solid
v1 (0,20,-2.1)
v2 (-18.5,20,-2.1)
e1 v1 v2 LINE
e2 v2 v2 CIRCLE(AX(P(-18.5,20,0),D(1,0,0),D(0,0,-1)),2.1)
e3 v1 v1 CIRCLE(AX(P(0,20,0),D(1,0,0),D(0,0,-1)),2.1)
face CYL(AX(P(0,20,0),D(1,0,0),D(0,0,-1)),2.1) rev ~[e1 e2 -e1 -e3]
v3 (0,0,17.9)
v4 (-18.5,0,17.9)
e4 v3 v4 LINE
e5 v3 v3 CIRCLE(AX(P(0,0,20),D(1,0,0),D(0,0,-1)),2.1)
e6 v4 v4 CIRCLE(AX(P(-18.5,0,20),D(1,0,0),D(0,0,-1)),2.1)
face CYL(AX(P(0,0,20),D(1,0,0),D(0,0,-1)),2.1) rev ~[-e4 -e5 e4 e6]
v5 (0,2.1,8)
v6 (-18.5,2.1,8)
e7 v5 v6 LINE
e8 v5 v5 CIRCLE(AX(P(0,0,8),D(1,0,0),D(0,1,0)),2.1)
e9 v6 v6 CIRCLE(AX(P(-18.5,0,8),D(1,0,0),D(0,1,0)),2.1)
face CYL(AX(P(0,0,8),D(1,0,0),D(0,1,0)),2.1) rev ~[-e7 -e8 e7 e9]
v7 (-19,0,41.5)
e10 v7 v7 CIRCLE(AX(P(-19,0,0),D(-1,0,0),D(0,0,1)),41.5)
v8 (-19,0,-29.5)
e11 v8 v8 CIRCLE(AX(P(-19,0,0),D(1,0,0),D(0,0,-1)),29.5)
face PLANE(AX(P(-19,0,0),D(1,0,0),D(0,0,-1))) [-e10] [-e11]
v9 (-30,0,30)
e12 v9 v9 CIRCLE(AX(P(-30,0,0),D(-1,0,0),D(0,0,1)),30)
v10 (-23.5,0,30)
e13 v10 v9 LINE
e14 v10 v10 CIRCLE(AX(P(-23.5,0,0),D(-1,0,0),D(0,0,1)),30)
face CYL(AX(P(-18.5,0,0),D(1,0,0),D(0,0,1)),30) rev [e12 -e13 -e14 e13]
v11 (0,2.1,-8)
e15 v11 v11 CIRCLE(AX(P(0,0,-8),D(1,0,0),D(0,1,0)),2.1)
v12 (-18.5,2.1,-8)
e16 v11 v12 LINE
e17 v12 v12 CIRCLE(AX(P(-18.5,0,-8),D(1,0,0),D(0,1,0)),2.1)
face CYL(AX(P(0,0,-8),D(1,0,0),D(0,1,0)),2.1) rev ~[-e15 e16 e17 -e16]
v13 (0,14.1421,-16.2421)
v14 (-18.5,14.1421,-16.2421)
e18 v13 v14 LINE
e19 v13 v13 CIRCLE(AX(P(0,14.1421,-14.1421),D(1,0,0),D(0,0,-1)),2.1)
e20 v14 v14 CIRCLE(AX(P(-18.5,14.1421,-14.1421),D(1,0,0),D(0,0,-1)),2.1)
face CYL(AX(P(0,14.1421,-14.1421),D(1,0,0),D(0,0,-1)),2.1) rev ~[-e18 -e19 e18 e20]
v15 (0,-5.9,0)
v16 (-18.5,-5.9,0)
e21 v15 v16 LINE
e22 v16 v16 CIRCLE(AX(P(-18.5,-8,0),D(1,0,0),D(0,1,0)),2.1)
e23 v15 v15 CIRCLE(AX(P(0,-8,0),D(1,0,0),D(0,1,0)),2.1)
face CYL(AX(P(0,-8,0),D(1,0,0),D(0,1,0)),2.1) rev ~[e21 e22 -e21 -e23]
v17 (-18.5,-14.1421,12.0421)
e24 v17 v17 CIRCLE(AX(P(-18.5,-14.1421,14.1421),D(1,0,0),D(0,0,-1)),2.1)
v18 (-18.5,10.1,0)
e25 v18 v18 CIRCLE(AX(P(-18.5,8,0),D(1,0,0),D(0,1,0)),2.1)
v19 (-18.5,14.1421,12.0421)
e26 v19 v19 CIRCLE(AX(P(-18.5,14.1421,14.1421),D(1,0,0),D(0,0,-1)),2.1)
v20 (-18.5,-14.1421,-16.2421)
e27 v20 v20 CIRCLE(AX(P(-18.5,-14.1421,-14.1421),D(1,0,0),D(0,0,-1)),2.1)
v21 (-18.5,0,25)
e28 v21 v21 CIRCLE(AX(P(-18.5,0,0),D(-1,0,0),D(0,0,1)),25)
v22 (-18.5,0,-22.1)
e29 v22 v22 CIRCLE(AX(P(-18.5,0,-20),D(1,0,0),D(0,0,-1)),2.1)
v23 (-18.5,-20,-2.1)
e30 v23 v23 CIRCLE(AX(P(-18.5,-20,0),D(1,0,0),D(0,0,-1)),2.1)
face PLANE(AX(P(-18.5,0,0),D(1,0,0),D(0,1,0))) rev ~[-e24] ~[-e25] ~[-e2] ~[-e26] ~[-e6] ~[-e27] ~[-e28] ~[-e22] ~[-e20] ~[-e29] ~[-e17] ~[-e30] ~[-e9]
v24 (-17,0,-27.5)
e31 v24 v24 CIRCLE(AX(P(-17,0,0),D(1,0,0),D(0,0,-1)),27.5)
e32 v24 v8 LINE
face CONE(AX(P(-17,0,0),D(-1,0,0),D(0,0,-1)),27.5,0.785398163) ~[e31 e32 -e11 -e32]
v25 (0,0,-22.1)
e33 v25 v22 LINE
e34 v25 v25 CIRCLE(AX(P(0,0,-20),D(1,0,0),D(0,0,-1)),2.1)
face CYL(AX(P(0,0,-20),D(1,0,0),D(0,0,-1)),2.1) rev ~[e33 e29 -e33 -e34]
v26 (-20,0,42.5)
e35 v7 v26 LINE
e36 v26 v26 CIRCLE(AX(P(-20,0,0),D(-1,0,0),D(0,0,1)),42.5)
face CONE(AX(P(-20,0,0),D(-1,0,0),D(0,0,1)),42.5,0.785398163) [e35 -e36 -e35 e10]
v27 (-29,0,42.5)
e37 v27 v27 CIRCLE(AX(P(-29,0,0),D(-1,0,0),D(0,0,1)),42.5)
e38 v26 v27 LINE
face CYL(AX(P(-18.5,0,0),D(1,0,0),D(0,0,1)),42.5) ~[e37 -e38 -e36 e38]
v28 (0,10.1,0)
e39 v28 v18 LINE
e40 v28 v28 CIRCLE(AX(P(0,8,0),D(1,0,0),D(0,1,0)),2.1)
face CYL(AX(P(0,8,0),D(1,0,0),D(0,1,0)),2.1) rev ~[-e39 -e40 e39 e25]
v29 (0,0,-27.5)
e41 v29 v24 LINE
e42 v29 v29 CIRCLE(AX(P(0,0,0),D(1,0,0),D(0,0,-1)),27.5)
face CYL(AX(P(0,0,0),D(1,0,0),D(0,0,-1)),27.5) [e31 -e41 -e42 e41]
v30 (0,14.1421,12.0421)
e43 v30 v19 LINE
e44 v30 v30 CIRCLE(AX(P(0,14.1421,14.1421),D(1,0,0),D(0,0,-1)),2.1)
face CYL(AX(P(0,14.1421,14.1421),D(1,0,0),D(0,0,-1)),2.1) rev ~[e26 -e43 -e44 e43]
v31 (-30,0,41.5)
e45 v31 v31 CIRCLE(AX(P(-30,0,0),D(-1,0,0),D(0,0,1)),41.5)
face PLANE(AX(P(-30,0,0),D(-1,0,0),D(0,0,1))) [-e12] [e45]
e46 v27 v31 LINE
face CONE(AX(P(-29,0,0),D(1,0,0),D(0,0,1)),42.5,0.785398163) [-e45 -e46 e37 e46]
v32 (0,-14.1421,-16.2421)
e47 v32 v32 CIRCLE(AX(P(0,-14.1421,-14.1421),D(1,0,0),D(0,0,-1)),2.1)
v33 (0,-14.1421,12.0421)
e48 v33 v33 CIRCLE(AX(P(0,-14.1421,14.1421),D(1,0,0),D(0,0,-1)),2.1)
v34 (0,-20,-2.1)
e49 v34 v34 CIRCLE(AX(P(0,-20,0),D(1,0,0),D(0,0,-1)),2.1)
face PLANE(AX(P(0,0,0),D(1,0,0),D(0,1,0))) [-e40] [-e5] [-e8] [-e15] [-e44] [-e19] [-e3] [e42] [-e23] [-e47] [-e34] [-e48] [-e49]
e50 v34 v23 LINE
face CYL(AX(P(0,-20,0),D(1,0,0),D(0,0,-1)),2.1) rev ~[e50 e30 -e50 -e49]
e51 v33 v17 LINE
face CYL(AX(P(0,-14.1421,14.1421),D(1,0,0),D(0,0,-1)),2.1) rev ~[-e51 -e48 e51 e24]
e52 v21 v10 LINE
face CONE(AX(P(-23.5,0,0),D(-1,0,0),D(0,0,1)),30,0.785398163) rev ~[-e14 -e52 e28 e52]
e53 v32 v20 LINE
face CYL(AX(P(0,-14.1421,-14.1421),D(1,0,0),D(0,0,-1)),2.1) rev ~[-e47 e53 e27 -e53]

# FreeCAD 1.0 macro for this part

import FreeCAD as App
import Part
import Sketcher

V = App.Vector
Q = App.Units.Quantity


def edges_at(feature, points):
    """Names of the edges that pass closest to the given points."""
    edges = feature.Shape.Edges
    near = lambda p: min(range(len(edges)), key=lambda i: edges[i].distToShape(Part.Vertex(*p))[0])
    return sorted({f"Edge{near(p) + 1}" for p in points})

doc = App.newDocument("Part")
params = doc.addObject("Spreadsheet::Sheet", "Params")
for row, (alias, value) in enumerate([
    ("sketch1_diameter", "85 mm"),
    ("sketch1_diameter2", "4.2 mm"),
    ("pad1_length", "18.5 mm"),
    ("sketch2_diameter", "60 mm"),
    ("sketch2_diameter2", "85 mm"),
    ("pad2_length", "11.5 mm"),
    ("chamfer_size", "5 mm"),
    ("sketch3_diameter", "55 mm"),
    ("sketch3_diameter2", "85 mm"),
    ("pocket1_length", "19 mm"),
    ("chamfer2_size", "2 mm"),
    ("sketch4_diameter", "4.2 mm"),
    ("chamfer3_size", "1 mm"),
], start=1):
    params.set(f"A{row}", alias)
    params.set(f"B{row}", "=" + value)
    params.setAlias(f"B{row}", alias)

body = doc.addObject("PartDesign::Body", "Body")

# Sketch on YZ plane
sketch1 = doc.addObject("Sketcher::SketchObject", "Sketch")
body.addObject(sketch1)
sketch1.AttachmentSupport = (doc.YZ_Plane, [""])
sketch1.MapMode = "FlatFace"
sketch1.addGeometry([
    Part.Circle(V(0, 0, 0), V(0, 0, 1), 42.5),  # 0
    Part.Circle(V(0, -8, 0), V(0, 0, 1), 2.1),  # 1
    Part.Circle(V(-8, 0, 0), V(0, 0, 1), 2.1),  # 2
    Part.Circle(V(8, 0, 0), V(0, 0, 1), 2.1),  # 3
    Part.Circle(V(0, 8, 0), V(0, 0, 1), 2.1),  # 4
], False)
sketch1.addConstraint([
    Sketcher.Constraint("Coincident", 0, 3, -1, 1),
    Sketcher.Constraint("Equal", 1, 2),
    Sketcher.Constraint("Equal", 2, 3),
    Sketcher.Constraint("Equal", 3, 4),
    Sketcher.Constraint("Symmetric", 2, 3, 3, 3, -1, 1),
    Sketcher.Constraint("Symmetric", 1, 3, 4, 3, -1, 1),
    Sketcher.Constraint("PointOnObject", 1, 3, -2),
    Sketcher.Constraint("PointOnObject", 2, 3, -1),
    Sketcher.Constraint("Diameter", 0, Q("85 mm")),
    Sketcher.Constraint("Diameter", 1, Q("4.2 mm")),
    Sketcher.Constraint("DistanceX", 2, 3, 3, 3, Q("16 mm")),
    Sketcher.Constraint("DistanceY", 1, 3, 4, 3, Q("16 mm")),
])
sketch1.setExpression("Constraints[8]", "Params.sketch1_diameter")
sketch1.setExpression("Constraints[9]", "Params.sketch1_diameter2")
pad1 = doc.addObject("PartDesign::Pad", "Pad")
body.addObject(pad1)
pad1.Profile = sketch1
pad1.setExpression("Length", "Params.pad1_length")
pad1.Reversed = True

# Sketch on YZ plane
sketch2 = doc.addObject("Sketcher::SketchObject", "Sketch001")
body.addObject(sketch2)
sketch2.AttachmentSupport = (doc.YZ_Plane, [""])
sketch2.MapMode = "FlatFace"
sketch2.AttachmentOffset = App.Placement(V(0, 0, -18.5), App.Rotation())
sketch2.addGeometry([
    Part.Circle(V(0, 0, 0), V(0, 0, 1), 42),
    Part.Circle(V(0, 0, 0), V(0, 0, 1), 30),
], False)
sketch2.addConstraint([
    Sketcher.Constraint("Coincident", 0, 3, -1, 1),
    Sketcher.Constraint("Coincident", 1, 3, -1, 1),
    Sketcher.Constraint("Diameter", 1, Q("60 mm")),
    Sketcher.Constraint("Diameter", 0, Q("85 mm")),
])
sketch2.setExpression("Constraints[2]", "Params.sketch2_diameter")
sketch2.setExpression("Constraints[3]", "Params.sketch2_diameter2")
pad2 = doc.addObject("PartDesign::Pad", "Pad001")
body.addObject(pad2)
pad2.Profile = sketch2
pad2.setExpression("Length", "Params.pad2_length")
pad2.Reversed = True
doc.recompute()

chamfer = doc.addObject("PartDesign::Chamfer", "Chamfer")
body.addObject(chamfer)
chamfer.Base = (pad2, edges_at(pad2, [(-18.5, 0, -30)]))
chamfer.setExpression("Size", "Params.chamfer_size")

# Sketch on YZ plane
sketch3 = doc.addObject("Sketcher::SketchObject", "Sketch002")
body.addObject(sketch3)
sketch3.AttachmentSupport = (doc.YZ_Plane, [""])
sketch3.MapMode = "FlatFace"
sketch3.addGeometry([
    Part.Circle(V(0, 0, 0), V(0, 0, 1), 42),
    Part.Circle(V(0, 0, 0), V(0, 0, 1), 28),
], False)
sketch3.addConstraint([
    Sketcher.Constraint("Coincident", 0, 3, -1, 1),
    Sketcher.Constraint("Coincident", 1, 3, -1, 1),
    Sketcher.Constraint("Diameter", 1, Q("55 mm")),
    Sketcher.Constraint("Diameter", 0, Q("85 mm")),
])
sketch3.setExpression("Constraints[2]", "Params.sketch3_diameter")
sketch3.setExpression("Constraints[3]", "Params.sketch3_diameter2")
pocket1 = doc.addObject("PartDesign::Pocket", "Pocket")
body.addObject(pocket1)
pocket1.Profile = sketch3
pocket1.setExpression("Length", "Params.pocket1_length")
doc.recompute()

chamfer2 = doc.addObject("PartDesign::Chamfer", "Chamfer001")
body.addObject(chamfer2)
chamfer2.Base = (pocket1, edges_at(pocket1, [(-19, 0, 27.5)]))
chamfer2.setExpression("Size", "Params.chamfer2_size")

# Sketch on YZ plane
sketch4 = doc.addObject("Sketcher::SketchObject", "Sketch003")
body.addObject(sketch4)
sketch4.AttachmentSupport = (doc.YZ_Plane, [""])
sketch4.MapMode = "FlatFace"
sketch4.addGeometry([
    Part.Circle(V(0, -20, 0), V(0, 0, 1), 2.1),  # 0
    Part.Circle(V(14.1, -14.1, 0), V(0, 0, 1), 2.1),  # 1
    Part.Circle(V(20, 0, 0), V(0, 0, 1), 2.1),  # 2
    Part.Circle(V(14.1, 14.1, 0), V(0, 0, 1), 2.1),  # 3
    Part.Circle(V(0, 20, 0), V(0, 0, 1), 2.1),  # 4
    Part.Circle(V(-14.1, 14.1, 0), V(0, 0, 1), 2.1),  # 5
    Part.Circle(V(-20, 0, 0), V(0, 0, 1), 2.1),  # 6
    Part.Circle(V(-14.1, -14.1, 0), V(0, 0, 1), 2.1),  # 7
], False)
sketch4.addConstraint([
    Sketcher.Constraint("Equal", 0, 1),
    Sketcher.Constraint("Equal", 1, 2),
    Sketcher.Constraint("Equal", 2, 3),
    Sketcher.Constraint("Equal", 3, 4),
    Sketcher.Constraint("Equal", 4, 5),
    Sketcher.Constraint("Equal", 5, 6),
    Sketcher.Constraint("Equal", 6, 7),
    Sketcher.Constraint("Symmetric", 0, 3, 4, 3, -1, 1),
    Sketcher.Constraint("Symmetric", 1, 3, 5, 3, -1, 1),
    Sketcher.Constraint("Symmetric", 2, 3, 6, 3, -1, 1),
    Sketcher.Constraint("Symmetric", 3, 3, 7, 3, -1, 1),
    Sketcher.Constraint("Symmetric", 3, 3, 5, 3, -2),
    Sketcher.Constraint("PointOnObject", 0, 3, -2),
    Sketcher.Constraint("PointOnObject", 2, 3, -1),
    Sketcher.Constraint("Diameter", 0, Q("4.2 mm")),
    Sketcher.Constraint("DistanceY", 0, 3, 4, 3, Q("40 mm")),
    Sketcher.Constraint("DistanceX", -1, 1, 2, 3, Q("20 mm")),
    Sketcher.Constraint("DistanceX", -1, 1, 1, 3, Q("14.142 mm")),
    Sketcher.Constraint("DistanceY", 1, 3, -1, 1, Q("14.142 mm")),
])
sketch4.setExpression("Constraints[14]", "Params.sketch4_diameter")
pocket2 = doc.addObject("PartDesign::Pocket", "Pocket001")
body.addObject(pocket2)
pocket2.Profile = sketch4
pocket2.Type = "ThroughAll"
doc.recompute()

chamfer3 = doc.addObject("PartDesign::Chamfer", "Chamfer002")
body.addObject(chamfer3)
chamfer3.Base = (pocket2, edges_at(pocket2, [(-19, 0, -42.5), (-30, 0, -42.5)]))
chamfer3.setExpression("Size", "Params.chamfer3_size")

doc.recompute()
